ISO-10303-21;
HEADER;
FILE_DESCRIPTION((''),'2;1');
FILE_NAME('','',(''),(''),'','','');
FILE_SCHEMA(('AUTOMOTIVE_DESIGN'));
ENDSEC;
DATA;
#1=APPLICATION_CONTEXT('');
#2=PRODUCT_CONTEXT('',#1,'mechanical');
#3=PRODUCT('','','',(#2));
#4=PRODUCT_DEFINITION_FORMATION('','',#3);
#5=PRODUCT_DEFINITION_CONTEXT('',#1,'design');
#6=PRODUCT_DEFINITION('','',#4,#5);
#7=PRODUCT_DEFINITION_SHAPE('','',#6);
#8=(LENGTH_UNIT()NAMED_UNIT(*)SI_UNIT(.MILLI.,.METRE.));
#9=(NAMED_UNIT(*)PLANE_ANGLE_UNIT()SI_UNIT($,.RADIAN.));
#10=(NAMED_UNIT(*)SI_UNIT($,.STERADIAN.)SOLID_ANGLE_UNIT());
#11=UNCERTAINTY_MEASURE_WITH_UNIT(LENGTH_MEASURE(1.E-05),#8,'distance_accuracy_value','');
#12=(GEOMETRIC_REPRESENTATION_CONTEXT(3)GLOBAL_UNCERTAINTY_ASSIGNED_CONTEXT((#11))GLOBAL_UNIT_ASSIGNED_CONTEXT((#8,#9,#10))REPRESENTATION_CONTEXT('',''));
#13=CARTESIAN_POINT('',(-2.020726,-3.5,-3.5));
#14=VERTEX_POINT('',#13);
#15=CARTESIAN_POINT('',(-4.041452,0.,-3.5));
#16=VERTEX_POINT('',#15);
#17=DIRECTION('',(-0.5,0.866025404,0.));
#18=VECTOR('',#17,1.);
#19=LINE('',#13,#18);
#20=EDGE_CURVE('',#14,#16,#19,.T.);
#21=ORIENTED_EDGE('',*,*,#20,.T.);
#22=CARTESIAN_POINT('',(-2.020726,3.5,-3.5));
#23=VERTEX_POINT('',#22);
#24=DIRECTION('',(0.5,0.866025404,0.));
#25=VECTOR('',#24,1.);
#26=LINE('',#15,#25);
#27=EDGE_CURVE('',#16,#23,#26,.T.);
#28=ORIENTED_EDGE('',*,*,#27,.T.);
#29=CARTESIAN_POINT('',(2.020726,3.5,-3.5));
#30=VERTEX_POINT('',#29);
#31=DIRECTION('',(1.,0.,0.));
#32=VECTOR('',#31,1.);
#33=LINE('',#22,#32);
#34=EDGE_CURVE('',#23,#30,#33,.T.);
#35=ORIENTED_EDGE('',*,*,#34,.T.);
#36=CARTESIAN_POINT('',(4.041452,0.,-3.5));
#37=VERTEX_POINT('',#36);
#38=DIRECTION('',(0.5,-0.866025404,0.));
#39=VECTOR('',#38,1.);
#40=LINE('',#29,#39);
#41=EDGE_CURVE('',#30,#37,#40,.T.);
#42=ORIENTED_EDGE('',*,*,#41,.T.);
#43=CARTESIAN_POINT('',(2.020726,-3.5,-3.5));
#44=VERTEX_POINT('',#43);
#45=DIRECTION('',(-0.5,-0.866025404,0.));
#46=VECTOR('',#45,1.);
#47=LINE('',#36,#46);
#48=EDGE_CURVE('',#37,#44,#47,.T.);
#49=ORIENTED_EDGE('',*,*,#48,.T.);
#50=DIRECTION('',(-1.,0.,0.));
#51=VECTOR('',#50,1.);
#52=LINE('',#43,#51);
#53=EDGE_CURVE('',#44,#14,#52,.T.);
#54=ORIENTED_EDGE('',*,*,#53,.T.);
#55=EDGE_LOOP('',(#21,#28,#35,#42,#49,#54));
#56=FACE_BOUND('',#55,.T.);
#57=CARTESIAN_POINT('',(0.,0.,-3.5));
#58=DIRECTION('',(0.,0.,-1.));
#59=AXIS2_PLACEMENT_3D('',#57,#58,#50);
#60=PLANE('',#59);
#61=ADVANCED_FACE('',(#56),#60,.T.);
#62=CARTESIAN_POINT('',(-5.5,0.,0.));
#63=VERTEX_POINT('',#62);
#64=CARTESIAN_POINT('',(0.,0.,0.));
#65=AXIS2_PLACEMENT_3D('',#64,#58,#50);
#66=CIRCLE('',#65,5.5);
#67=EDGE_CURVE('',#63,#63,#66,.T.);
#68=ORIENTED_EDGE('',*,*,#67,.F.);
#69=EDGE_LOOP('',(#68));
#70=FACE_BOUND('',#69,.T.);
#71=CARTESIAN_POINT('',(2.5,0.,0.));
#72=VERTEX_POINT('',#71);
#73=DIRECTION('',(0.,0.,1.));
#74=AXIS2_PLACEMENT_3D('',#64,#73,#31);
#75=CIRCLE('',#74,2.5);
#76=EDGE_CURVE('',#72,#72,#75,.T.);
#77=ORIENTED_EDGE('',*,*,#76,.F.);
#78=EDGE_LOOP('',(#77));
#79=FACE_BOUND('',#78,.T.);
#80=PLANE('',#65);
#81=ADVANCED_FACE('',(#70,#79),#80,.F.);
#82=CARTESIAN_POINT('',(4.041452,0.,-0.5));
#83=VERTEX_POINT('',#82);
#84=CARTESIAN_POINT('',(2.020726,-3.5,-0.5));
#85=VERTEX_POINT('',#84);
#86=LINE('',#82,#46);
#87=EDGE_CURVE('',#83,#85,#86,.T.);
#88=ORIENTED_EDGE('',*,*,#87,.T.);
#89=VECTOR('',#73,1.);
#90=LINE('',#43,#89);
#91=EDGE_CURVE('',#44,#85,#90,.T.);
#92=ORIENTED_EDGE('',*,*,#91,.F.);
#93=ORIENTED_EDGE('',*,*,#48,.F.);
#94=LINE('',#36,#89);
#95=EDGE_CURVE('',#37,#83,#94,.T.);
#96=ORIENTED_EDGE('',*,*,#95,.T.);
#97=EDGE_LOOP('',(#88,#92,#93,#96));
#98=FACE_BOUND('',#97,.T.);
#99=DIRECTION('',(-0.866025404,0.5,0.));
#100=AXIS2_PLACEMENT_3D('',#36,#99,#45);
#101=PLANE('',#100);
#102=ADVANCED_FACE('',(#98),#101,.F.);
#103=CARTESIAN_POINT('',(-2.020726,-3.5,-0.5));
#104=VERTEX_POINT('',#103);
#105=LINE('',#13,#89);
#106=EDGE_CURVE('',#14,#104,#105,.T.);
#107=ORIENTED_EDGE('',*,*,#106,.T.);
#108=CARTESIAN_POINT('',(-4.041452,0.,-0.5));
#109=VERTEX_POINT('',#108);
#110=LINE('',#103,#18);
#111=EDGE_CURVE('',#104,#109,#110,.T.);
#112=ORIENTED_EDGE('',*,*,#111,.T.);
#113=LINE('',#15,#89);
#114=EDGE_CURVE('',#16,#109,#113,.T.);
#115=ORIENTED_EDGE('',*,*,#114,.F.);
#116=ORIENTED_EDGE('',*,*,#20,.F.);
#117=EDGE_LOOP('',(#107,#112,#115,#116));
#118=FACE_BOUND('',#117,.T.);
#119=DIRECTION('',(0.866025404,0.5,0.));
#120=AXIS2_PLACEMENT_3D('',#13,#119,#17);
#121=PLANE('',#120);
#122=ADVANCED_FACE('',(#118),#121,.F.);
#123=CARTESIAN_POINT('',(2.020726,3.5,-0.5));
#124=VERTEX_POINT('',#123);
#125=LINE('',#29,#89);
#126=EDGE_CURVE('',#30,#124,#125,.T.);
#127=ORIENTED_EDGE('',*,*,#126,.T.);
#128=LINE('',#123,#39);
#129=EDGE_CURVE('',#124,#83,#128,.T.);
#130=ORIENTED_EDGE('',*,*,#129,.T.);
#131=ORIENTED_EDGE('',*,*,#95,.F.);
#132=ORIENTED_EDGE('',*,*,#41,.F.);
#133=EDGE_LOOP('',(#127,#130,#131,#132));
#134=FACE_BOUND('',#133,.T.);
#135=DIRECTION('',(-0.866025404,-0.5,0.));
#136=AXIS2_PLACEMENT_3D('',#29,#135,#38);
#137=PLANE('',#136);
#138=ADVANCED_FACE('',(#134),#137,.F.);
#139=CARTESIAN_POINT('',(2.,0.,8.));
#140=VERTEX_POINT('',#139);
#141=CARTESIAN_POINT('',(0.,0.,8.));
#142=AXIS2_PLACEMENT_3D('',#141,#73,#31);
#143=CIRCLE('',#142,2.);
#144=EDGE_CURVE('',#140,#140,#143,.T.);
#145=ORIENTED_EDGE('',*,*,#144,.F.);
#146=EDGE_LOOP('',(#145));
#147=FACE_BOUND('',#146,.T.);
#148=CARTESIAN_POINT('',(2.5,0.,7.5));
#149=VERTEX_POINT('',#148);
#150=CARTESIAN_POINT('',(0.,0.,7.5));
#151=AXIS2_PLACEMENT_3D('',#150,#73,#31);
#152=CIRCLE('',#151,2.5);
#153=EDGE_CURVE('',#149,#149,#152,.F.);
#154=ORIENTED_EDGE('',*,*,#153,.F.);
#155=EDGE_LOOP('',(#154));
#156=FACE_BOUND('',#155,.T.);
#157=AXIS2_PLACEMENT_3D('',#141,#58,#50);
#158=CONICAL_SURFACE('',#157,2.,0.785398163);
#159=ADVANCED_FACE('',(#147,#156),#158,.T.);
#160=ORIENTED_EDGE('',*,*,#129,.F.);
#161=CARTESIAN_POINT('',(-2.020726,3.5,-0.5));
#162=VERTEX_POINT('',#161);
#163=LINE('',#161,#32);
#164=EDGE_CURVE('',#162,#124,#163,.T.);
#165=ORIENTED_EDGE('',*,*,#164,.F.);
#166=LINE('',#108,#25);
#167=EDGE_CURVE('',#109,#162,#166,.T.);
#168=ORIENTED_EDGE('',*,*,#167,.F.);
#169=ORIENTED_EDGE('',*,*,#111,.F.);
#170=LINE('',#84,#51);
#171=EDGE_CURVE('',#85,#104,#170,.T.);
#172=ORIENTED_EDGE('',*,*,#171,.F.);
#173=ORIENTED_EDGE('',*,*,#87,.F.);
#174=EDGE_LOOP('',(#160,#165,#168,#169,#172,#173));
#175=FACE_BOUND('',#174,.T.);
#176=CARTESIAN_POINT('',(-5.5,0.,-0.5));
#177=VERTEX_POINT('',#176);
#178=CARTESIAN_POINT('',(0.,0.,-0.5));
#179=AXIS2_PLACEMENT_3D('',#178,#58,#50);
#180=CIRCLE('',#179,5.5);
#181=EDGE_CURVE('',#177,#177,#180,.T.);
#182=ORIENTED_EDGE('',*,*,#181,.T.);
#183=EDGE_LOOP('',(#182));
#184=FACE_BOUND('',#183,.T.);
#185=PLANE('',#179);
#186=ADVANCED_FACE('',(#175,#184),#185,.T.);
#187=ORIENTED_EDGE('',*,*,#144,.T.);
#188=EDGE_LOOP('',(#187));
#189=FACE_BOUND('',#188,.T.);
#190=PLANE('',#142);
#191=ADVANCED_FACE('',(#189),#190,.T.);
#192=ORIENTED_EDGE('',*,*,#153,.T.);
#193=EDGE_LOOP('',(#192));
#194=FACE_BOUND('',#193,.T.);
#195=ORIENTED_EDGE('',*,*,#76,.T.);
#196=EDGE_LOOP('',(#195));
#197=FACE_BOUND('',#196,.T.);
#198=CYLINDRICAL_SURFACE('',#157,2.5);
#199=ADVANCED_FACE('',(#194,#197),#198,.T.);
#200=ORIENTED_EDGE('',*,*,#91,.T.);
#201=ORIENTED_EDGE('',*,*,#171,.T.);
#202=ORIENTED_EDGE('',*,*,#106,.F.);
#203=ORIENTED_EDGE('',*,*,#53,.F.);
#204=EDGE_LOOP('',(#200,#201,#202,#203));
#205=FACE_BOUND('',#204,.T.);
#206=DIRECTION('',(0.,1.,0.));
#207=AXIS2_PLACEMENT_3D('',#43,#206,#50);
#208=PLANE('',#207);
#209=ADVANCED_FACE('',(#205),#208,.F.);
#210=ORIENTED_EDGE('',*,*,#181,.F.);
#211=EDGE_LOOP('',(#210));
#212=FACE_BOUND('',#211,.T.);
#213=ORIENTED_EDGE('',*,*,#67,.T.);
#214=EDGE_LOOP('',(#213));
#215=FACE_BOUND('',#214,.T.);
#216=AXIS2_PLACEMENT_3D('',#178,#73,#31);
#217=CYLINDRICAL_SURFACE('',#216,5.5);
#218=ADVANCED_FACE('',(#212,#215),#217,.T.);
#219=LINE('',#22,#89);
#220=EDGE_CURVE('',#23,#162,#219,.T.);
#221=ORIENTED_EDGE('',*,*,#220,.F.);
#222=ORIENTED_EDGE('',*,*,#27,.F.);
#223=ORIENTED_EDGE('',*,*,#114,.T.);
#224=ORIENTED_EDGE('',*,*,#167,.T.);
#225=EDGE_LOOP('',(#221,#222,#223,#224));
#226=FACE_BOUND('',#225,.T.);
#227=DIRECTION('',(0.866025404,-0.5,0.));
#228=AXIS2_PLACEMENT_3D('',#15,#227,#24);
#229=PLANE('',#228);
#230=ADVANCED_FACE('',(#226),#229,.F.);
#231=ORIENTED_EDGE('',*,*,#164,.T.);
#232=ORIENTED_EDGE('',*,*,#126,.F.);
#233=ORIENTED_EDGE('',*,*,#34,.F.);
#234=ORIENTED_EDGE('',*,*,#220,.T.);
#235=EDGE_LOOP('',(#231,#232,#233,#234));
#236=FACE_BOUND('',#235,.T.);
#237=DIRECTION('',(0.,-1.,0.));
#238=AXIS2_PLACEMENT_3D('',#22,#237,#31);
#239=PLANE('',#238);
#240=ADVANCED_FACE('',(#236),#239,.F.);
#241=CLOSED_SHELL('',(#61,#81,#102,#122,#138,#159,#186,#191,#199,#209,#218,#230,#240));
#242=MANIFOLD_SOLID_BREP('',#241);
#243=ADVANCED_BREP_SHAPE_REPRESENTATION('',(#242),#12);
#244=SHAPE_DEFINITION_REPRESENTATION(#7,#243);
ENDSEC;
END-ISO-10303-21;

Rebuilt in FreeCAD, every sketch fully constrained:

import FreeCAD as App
import Part
import Sketcher

V = App.Vector
Q = App.Units.Quantity


def edges_at(feature, points):
    """Names of the edges that pass closest to the given points."""
    edges = feature.Shape.Edges
    near = lambda p: min(range(len(edges)), key=lambda i: edges[i].distToShape(Part.Vertex(*p))[0])
    return sorted({f"Edge{near(p) + 1}" for p in points})

doc = App.newDocument("Part")
params = doc.addObject("Spreadsheet::Sheet", "Params")
for row, (alias, value) in enumerate([
    ("sketch1_diameter", "5 mm"),
    ("pad1_length", "8 mm"),
    ("sketch2_diameter", "11 mm"),
    ("pad2_length", "0.5 mm"),
    ("pad3_length", "3 mm"),
    ("chamfer_size", "0.5 mm"),
], start=1):
    params.set(f"A{row}", alias)
    params.set(f"B{row}", "=" + value)
    params.setAlias(f"B{row}", alias)

body = doc.addObject("PartDesign::Body", "Body")

# Sketch on XY plane
sketch1 = body.newObject("Sketcher::SketchObject", "Sketch")
sketch1.AttachmentSupport = (doc.getObject("XY_Plane"), [""])
sketch1.MapMode = "FlatFace"
sketch1.addGeometry(Part.Circle(V(0, 0, 0), V(0, 0, 1), 2.5), False)
sketch1.addConstraint(Sketcher.Constraint("Coincident", 0, 3, -1, 1))
sketch1.addConstraint(Sketcher.Constraint("Diameter", 0, 5.0))
sketch1.setExpression("Constraints[1]", "Params.sketch1_diameter")
pad1 = body.newObject("PartDesign::Pad", "Pad")
pad1.Profile = sketch1
pad1.setExpression("Length", "Params.pad1_length")

# Sketch on XY plane
sketch2 = body.newObject("Sketcher::SketchObject", "Sketch001")
sketch2.AttachmentSupport = (doc.getObject("XY_Plane"), [""])
sketch2.MapMode = "FlatFace"
sketch2.addGeometry(Part.Circle(V(0, 0, 0), V(0, 0, 1), 6), False)
sketch2.addConstraint(Sketcher.Constraint("Coincident", 0, 3, -1, 1))
sketch2.addConstraint(Sketcher.Constraint("Diameter", 0, 11.0))
sketch2.setExpression("Constraints[1]", "Params.sketch2_diameter")
pad2 = body.newObject("PartDesign::Pad", "Pad001")
pad2.Profile = sketch2
pad2.setExpression("Length", "Params.pad2_length")
pad2.Reversed = True

# Sketch on XY plane
sketch3 = body.newObject("Sketcher::SketchObject", "Sketch002")
sketch3.AttachmentSupport = (doc.getObject("XY_Plane"), [""])
sketch3.MapMode = "FlatFace"
sketch3.AttachmentOffset = App.Placement(V(0, 0, -0.5), App.Rotation())
sketch3.addGeometry(Part.LineSegment(V(-4, 0, 0), V(-2, 3.5, 0)), False)
sketch3.addGeometry(Part.LineSegment(V(-2, 3.5, 0), V(2, 3.5, 0)), False)
sketch3.addGeometry(Part.LineSegment(V(2, 3.5, 0), V(4, 0, 0)), False)
sketch3.addGeometry(Part.LineSegment(V(4, 0, 0), V(2, -3.5, 0)), False)
sketch3.addGeometry(Part.LineSegment(V(2, -3.5, 0), V(-2, -3.5, 0)), False)
sketch3.addGeometry(Part.LineSegment(V(-2, -3.5, 0), V(-4, 0, 0)), False)
sketch3.addConstraint(Sketcher.Constraint("Coincident", 0, 2, 1, 1))
sketch3.addConstraint(Sketcher.Constraint("Coincident", 1, 2, 2, 1))
sketch3.addConstraint(Sketcher.Constraint("Coincident", 2, 2, 3, 1))
sketch3.addConstraint(Sketcher.Constraint("Coincident", 3, 2, 4, 1))
sketch3.addConstraint(Sketcher.Constraint("Coincident", 4, 2, 5, 1))
sketch3.addConstraint(Sketcher.Constraint("Coincident", 5, 2, 0, 1))
sketch3.addConstraint(Sketcher.Constraint("Horizontal", 1))
sketch3.addConstraint(Sketcher.Constraint("Horizontal", 4))
sketch3.addConstraint(Sketcher.Constraint("Symmetric", 0, 2, 3, 2, -1, 1))
sketch3.addConstraint(Sketcher.Constraint("Symmetric", 2, 2, 5, 2, -1, 1))
sketch3.addConstraint(Sketcher.Constraint("PointOnObject", 2, 2, -1))
sketch3.addConstraint(Sketcher.Constraint("Parallel", 2, 5))
sketch3.addConstraint(Sketcher.Constraint("Vertical", 1, 2, 3, 2))
sketch3.addConstraint(Sketcher.Constraint("Angle", 0, Q("60 deg")))
sketch3.addConstraint(Sketcher.Constraint("DistanceY", 3, 2, 1, 2, 7.0))
sketch3.addConstraint(Sketcher.Constraint("DistanceX", 1, 1, 1, 2, 4.041452))
pad3 = body.newObject("PartDesign::Pad", "Pad002")
pad3.Profile = sketch3
pad3.setExpression("Length", "Params.pad3_length")
pad3.Reversed = True
doc.recompute()

chamfer = body.newObject("PartDesign::Chamfer", "Chamfer")
chamfer.Base = (pad3, edges_at(pad3, [(-2.5, 0, 8)]))
chamfer.setExpression("Size", "Params.chamfer_size")

doc.recompute()
